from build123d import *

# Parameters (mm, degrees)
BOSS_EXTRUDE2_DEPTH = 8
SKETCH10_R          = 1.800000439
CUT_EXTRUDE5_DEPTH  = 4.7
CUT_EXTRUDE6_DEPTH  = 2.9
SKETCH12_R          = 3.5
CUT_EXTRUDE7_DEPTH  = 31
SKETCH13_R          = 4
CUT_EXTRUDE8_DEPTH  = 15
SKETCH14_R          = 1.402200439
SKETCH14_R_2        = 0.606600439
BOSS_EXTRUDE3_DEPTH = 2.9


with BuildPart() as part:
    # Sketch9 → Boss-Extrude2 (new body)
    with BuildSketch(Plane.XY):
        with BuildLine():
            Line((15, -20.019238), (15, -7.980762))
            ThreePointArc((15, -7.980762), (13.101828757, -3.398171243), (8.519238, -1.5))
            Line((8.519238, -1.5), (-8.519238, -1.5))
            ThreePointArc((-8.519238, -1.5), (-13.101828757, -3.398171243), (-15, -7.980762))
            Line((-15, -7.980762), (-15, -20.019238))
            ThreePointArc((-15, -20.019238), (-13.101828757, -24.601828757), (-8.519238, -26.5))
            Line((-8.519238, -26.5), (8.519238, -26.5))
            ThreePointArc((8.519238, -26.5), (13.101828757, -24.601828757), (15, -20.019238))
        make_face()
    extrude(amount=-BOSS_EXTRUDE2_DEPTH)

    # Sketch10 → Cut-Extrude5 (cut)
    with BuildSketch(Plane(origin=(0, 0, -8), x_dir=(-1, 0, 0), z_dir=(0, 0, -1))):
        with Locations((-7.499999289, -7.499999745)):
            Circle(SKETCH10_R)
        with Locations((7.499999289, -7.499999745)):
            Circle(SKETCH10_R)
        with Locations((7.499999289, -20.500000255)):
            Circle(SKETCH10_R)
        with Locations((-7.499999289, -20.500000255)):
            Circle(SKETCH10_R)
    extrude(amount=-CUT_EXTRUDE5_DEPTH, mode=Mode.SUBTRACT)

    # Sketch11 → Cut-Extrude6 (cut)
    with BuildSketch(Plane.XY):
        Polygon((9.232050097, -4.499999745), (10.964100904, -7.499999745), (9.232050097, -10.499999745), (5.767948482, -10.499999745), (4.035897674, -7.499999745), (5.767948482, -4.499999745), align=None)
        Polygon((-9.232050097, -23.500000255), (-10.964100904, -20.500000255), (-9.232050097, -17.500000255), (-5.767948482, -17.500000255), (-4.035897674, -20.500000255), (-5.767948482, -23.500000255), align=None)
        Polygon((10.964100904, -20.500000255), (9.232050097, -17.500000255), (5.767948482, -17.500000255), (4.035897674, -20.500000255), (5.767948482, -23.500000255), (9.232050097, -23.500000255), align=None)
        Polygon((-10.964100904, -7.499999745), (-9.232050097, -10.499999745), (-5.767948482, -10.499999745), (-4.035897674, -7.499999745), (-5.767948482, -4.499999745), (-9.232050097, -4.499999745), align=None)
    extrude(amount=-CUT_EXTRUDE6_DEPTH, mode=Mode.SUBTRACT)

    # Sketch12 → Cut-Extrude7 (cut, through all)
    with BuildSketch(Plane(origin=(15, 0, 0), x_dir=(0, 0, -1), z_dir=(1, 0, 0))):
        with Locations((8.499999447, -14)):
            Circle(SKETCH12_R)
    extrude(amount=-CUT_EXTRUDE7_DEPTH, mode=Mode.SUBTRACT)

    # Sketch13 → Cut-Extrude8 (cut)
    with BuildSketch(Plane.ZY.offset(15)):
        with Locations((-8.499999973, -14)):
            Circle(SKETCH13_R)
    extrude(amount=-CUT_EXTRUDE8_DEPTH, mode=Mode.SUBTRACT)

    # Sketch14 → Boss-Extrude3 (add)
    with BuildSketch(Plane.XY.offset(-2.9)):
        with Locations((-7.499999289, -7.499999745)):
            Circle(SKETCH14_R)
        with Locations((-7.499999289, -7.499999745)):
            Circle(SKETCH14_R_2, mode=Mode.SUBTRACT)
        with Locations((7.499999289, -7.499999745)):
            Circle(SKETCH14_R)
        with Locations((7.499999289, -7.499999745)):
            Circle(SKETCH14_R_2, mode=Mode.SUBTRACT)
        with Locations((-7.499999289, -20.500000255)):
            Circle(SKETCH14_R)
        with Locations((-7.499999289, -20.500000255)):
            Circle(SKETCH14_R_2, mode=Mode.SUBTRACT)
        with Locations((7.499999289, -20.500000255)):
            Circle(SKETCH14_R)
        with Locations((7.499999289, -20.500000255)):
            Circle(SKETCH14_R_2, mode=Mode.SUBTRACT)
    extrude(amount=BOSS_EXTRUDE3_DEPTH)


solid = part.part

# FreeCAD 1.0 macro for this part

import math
import FreeCAD as App
import Part
import Sketcher
from FreeCAD import Vector
Q = App.Units.Quantity


def add_polygon(sketch, points):
    """Adds a closed chain of lines whose ends are joined by coincident constraints."""
    first, n = sketch.GeometryCount, len(points)
    for a, b in zip(points, points[1:] + points[:1]):
        sketch.addGeometry(Part.LineSegment(App.Vector(*a, 0), App.Vector(*b, 0)), False)
    for i in range(n):
        sketch.addConstraint(Sketcher.Constraint("Coincident", first + i, 2, first + (i + 1) % n, 1))

doc = App.newDocument("Part")
body = doc.addObject("PartDesign::Body", "Body")

# Sketch on XY plane
sketch1 = body.newObject("Sketcher::SketchObject", "Sketch")
sketch1.AttachmentSupport = (doc.getObject("XY_Plane"), [""])
sketch1.MapMode = "FlatFace"
sketch1.addGeometry(Part.LineSegment(Vector(15, -20.019238, 0), Vector(15, -7.980762, 0)), False)
sketch1.addGeometry(Part.ArcOfCircle(Part.Circle(Vector(8.519238, -7.980762, 0), Vector(0, 0, 1), 6.480762), math.radians(0), math.radians(90)), False)
sketch1.addGeometry(Part.LineSegment(Vector(8.519238, -1.5, 0), Vector(-8.519238, -1.5, 0)), False)
sketch1.addGeometry(Part.ArcOfCircle(Part.Circle(Vector(-8.519238, -7.980762, 0), Vector(0, 0, 1), 6.480762), math.radians(90), math.radians(180)), False)
sketch1.addGeometry(Part.LineSegment(Vector(-15, -7.980762, 0), Vector(-15, -20.019238, 0)), False)
sketch1.addGeometry(Part.ArcOfCircle(Part.Circle(Vector(-8.519238, -20.019238, 0), Vector(0, 0, 1), 6.480762), math.radians(-180), math.radians(-90)), False)
sketch1.addGeometry(Part.LineSegment(Vector(-8.519238, -26.5, 0), Vector(8.519238, -26.5, 0)), False)
sketch1.addGeometry(Part.ArcOfCircle(Part.Circle(Vector(8.519238, -20.019238, 0), Vector(0, 0, 1), 6.480762), math.radians(-90), math.radians(0)), False)
sketch1.addConstraint(Sketcher.Constraint("Tangent", 0, 2, 1, 1))
sketch1.addConstraint(Sketcher.Constraint("Tangent", 1, 2, 2, 1))
sketch1.addConstraint(Sketcher.Constraint("Tangent", 2, 2, 3, 1))
sketch1.addConstraint(Sketcher.Constraint("Tangent", 3, 2, 4, 1))
sketch1.addConstraint(Sketcher.Constraint("Tangent", 4, 2, 5, 1))
sketch1.addConstraint(Sketcher.Constraint("Tangent", 5, 2, 6, 1))
sketch1.addConstraint(Sketcher.Constraint("Tangent", 6, 2, 7, 1))
sketch1.addConstraint(Sketcher.Constraint("Tangent", 7, 2, 0, 1))
sketch1.addConstraint(Sketcher.Constraint("Vertical", 0))
sketch1.addConstraint(Sketcher.Constraint("Horizontal", 2))
sketch1.addConstraint(Sketcher.Constraint("Vertical", 4))
sketch1.addConstraint(Sketcher.Constraint("Horizontal", 6))
sketch1.addConstraint(Sketcher.Constraint("Equal", 1, 3))
sketch1.addConstraint(Sketcher.Constraint("Equal", 3, 5))
sketch1.addConstraint(Sketcher.Constraint("Equal", 5, 7))
sketch1.addConstraint(Sketcher.Constraint("DistanceX", -1, 1, 0, 2, 15.0))
sketch1.addConstraint(Sketcher.Constraint("DistanceX", 3, 2, -1, 1, 15.0))
sketch1.addConstraint(Sketcher.Constraint("DistanceY", 1, 2, -1, 1, 1.5))
sketch1.addConstraint(Sketcher.Constraint("DistanceY", 5, 2, -1, 1, 26.5))
sketch1.addConstraint(Sketcher.Constraint("Radius", 1, 6.480762))
pad1 = body.newObject("PartDesign::Pad", "Pad")
pad1.Profile = sketch1
pad1.Length = 8
pad1.Reversed = True

# Sketch on XY plane
sketch2 = body.newObject("Sketcher::SketchObject", "Sketch001")
sketch2.AttachmentSupport = (doc.getObject("XY_Plane"), [""])
sketch2.MapMode = "FlatFace"
sketch2.AttachmentOffset = App.Placement(Vector(0, 0, -8), App.Rotation())
sketch2.addGeometry(Part.Circle(Vector(7.499999, -7.5, 0), Vector(0, 0, 1), 1.8), False)
sketch2.addGeometry(Part.Circle(Vector(-7.499999, -7.5, 0), Vector(0, 0, 1), 1.8), False)
sketch2.addGeometry(Part.Circle(Vector(-7.499999, -20.5, 0), Vector(0, 0, 1), 1.8), False)
sketch2.addGeometry(Part.Circle(Vector(7.499999, -20.5, 0), Vector(0, 0, 1), 1.8), False)
sketch2.addConstraint(Sketcher.Constraint("Equal", 0, 1))
sketch2.addConstraint(Sketcher.Constraint("Equal", 1, 2))
sketch2.addConstraint(Sketcher.Constraint("Equal", 2, 3))
sketch2.addConstraint(Sketcher.Constraint("Symmetric", 0, 3, 1, 3, -2))
sketch2.addConstraint(Sketcher.Constraint("Symmetric", 2, 3, 3, 3, -2))
sketch2.addConstraint(Sketcher.Constraint("Vertical", 1, 3, 2, 3))
sketch2.addConstraint(Sketcher.Constraint("Diameter", 0, 3.600001))
sketch2.addConstraint(Sketcher.Constraint("DistanceX", 1, 3, 0, 3, 14.999999))
sketch2.addConstraint(Sketcher.Constraint("DistanceY", 2, 3, 1, 3, 13.000001))
sketch2.addConstraint(Sketcher.Constraint("DistanceY", 0, 3, -1, 1, 7.5))
pocket1 = body.newObject("PartDesign::Pocket", "Pocket")
pocket1.Profile = sketch2
pocket1.Length = 4.7
pocket1.Reversed = True

# Sketch on XY plane
sketch3 = body.newObject("Sketcher::SketchObject", "Sketch002")
sketch3.AttachmentSupport = (doc.getObject("XY_Plane"), [""])
sketch3.MapMode = "FlatFace"
add_polygon(sketch3, [(10.964101, -7.5), (9.23205, -4.5), (5.767948, -4.5), (4.035898, -7.5), (5.767948, -10.5), (9.23205, -10.5)])  # lines 0-5
add_polygon(sketch3, [(-10.964101, -20.5), (-9.23205, -23.5), (-5.767948, -23.5), (-4.035898, -20.5), (-5.767948, -17.5), (-9.23205, -17.5)])  # lines 6-11
add_polygon(sketch3, [(10.964101, -20.5), (9.23205, -17.5), (5.767948, -17.5), (4.035898, -20.5), (5.767948, -23.5), (9.23205, -23.5)])  # lines 12-17
add_polygon(sketch3, [(-10.964101, -7.5), (-9.23205, -10.5), (-5.767948, -10.5), (-4.035898, -7.5), (-5.767948, -4.5), (-9.23205, -4.5)])  # lines 18-23
sketch3.addConstraint(Sketcher.Constraint("Horizontal", 1))
sketch3.addConstraint(Sketcher.Constraint("Horizontal", 4))
sketch3.addConstraint(Sketcher.Constraint("Horizontal", 7))
sketch3.addConstraint(Sketcher.Constraint("Horizontal", 10))
sketch3.addConstraint(Sketcher.Constraint("Horizontal", 13))
sketch3.addConstraint(Sketcher.Constraint("Horizontal", 16))
sketch3.addConstraint(Sketcher.Constraint("Horizontal", 19))
sketch3.addConstraint(Sketcher.Constraint("Horizontal", 22))
sketch3.addConstraint(Sketcher.Constraint("Symmetric", 10, 2, 12, 2, -2))
sketch3.addConstraint(Sketcher.Constraint("Symmetric", 8, 2, 14, 2, -2))
sketch3.addConstraint(Sketcher.Constraint("Symmetric", 7, 2, 15, 2, -2))
sketch3.addConstraint(Sketcher.Constraint("Symmetric", 11, 2, 17, 2, -2))
sketch3.addConstraint(Sketcher.Constraint("Symmetric", 4, 2, 18, 2, -2))
sketch3.addConstraint(Sketcher.Constraint("Symmetric", 2, 2, 20, 2, -2))
sketch3.addConstraint(Sketcher.Constraint("Symmetric", 1, 2, 21, 2, -2))
sketch3.addConstraint(Sketcher.Constraint("Symmetric", 5, 2, 23, 2, -2))
sketch3.addConstraint(Sketcher.Constraint("Parallel", 0, 3))
sketch3.addConstraint(Sketcher.Constraint("Parallel", 2, 5))
sketch3.addConstraint(Sketcher.Constraint("Parallel", 3, 6))
sketch3.addConstraint(Sketcher.Constraint("Parallel", 5, 8))
sketch3.addConstraint(Sketcher.Constraint("Parallel", 6, 9))
sketch3.addConstraint(Sketcher.Constraint("Parallel", 8, 11))
sketch3.addConstraint(Sketcher.Constraint("Parallel", 9, 12))
sketch3.addConstraint(Sketcher.Constraint("Parallel", 11, 14))
sketch3.addConstraint(Sketcher.Constraint("Parallel", 14, 17))
sketch3.addConstraint(Sketcher.Constraint("Parallel", 17, 20))
sketch3.addConstraint(Sketcher.Constraint("Parallel", 20, 23))
sketch3.addConstraint(Sketcher.Constraint("Horizontal", 2, 2, 5, 2))
sketch3.addConstraint(Sketcher.Constraint("Horizontal", 8, 2, 11, 2))
sketch3.addConstraint(Sketcher.Constraint("Vertical", 1, 2, 3, 2))
sketch3.addConstraint(Sketcher.Constraint("Vertical", 7, 2, 9, 2))
sketch3.addConstraint(Sketcher.Constraint("Vertical", 4, 2, 12, 2))
sketch3.addConstraint(Sketcher.Constraint("Vertical", 3, 2, 13, 2))
sketch3.addConstraint(Sketcher.Constraint("Vertical", 2, 2, 14, 2))
sketch3.addConstraint(Sketcher.Constraint("Angle", 0, Q("120 deg")))
sketch3.addConstraint(Sketcher.Constraint("DistanceY", 2, 2, 1, 2, 3.0))
sketch3.addConstraint(Sketcher.Constraint("DistanceX", 6, 2, 3, 2, 14.999999))
sketch3.addConstraint(Sketcher.Constraint("DistanceY", 6, 2, 3, 2, 13.000001))
sketch3.addConstraint(Sketcher.Constraint("DistanceY", 0, 2, -1, 1, 4.5))
sketch3.addConstraint(Sketcher.Constraint("DistanceX", 1, 2, 1, 1, 3.464102))
pocket2 = body.newObject("PartDesign::Pocket", "Pocket001")
pocket2.Profile = sketch3
pocket2.Length = 2.9

# Sketch on YZ plane
sketch4 = body.newObject("Sketcher::SketchObject", "Sketch003")
sketch4.AttachmentSupport = (doc.getObject("YZ_Plane"), [""])
sketch4.MapMode = "FlatFace"
sketch4.AttachmentOffset = App.Placement(Vector(0, 0, 15), App.Rotation())
sketch4.addGeometry(Part.Circle(Vector(-14, -8.499999, 0), Vector(0, 0, 1), 3.5), False)
sketch4.addConstraint(Sketcher.Constraint("Diameter", 0, 7.0))
sketch4.addConstraint(Sketcher.Constraint("DistanceX", 0, 3, -1, 1, 14.0))
sketch4.addConstraint(Sketcher.Constraint("DistanceY", 0, 3, -1, 1, 8.499999))
pocket3 = body.newObject("PartDesign::Pocket", "Pocket002")
pocket3.Profile = sketch4
pocket3.Type = "ThroughAll"

# Sketch on YZ plane
sketch5 = body.newObject("Sketcher::SketchObject", "Sketch004")
sketch5.AttachmentSupport = (doc.getObject("YZ_Plane"), [""])
sketch5.MapMode = "FlatFace"
sketch5.AttachmentOffset = App.Placement(Vector(0, 0, -15), App.Rotation())
sketch5.addGeometry(Part.Circle(Vector(-14, -8.5, 0), Vector(0, 0, 1), 4), False)
sketch5.addConstraint(Sketcher.Constraint("Diameter", 0, 8.0))
sketch5.addConstraint(Sketcher.Constraint("DistanceX", 0, 3, -1, 1, 14.0))
sketch5.addConstraint(Sketcher.Constraint("DistanceY", 0, 3, -1, 1, 8.5))
pocket4 = body.newObject("PartDesign::Pocket", "Pocket003")
pocket4.Profile = sketch5
pocket4.Length = 15
pocket4.Reversed = True

# Sketch on XY plane
sketch6 = body.newObject("Sketcher::SketchObject", "Sketch005")
sketch6.AttachmentSupport = (doc.getObject("XY_Plane"), [""])
sketch6.MapMode = "FlatFace"
sketch6.AttachmentOffset = App.Placement(Vector(0, 0, -2.9), App.Rotation())
sketch6.addGeometry(Part.Circle(Vector(-7.499999, -7.5, 0), Vector(0, 0, 1), 1.4022), False)
sketch6.addGeometry(Part.Circle(Vector(-7.499999, -7.5, 0), Vector(0, 0, 1), 0.6066), False)
sketch6.addGeometry(Part.Circle(Vector(7.499999, -7.5, 0), Vector(0, 0, 1), 1.4022), False)
sketch6.addGeometry(Part.Circle(Vector(7.499999, -7.5, 0), Vector(0, 0, 1), 0.6066), False)
sketch6.addGeometry(Part.Circle(Vector(-7.499999, -20.5, 0), Vector(0, 0, 1), 1.4022), False)
sketch6.addGeometry(Part.Circle(Vector(-7.499999, -20.5, 0), Vector(0, 0, 1), 0.6066), False)
sketch6.addGeometry(Part.Circle(Vector(7.499999, -20.5, 0), Vector(0, 0, 1), 1.4022), False)
sketch6.addGeometry(Part.Circle(Vector(7.499999, -20.5, 0), Vector(0, 0, 1), 0.6066), False)
sketch6.addConstraint(Sketcher.Constraint("Coincident", 1, 3, 0, 3))
sketch6.addConstraint(Sketcher.Constraint("Coincident", 3, 3, 2, 3))
sketch6.addConstraint(Sketcher.Constraint("Coincident", 5, 3, 4, 3))
sketch6.addConstraint(Sketcher.Constraint("Coincident", 7, 3, 6, 3))
sketch6.addConstraint(Sketcher.Constraint("Equal", 0, 2))
sketch6.addConstraint(Sketcher.Constraint("Equal", 1, 3))
sketch6.addConstraint(Sketcher.Constraint("Equal", 2, 4))
sketch6.addConstraint(Sketcher.Constraint("Equal", 3, 5))
sketch6.addConstraint(Sketcher.Constraint("Equal", 4, 6))
sketch6.addConstraint(Sketcher.Constraint("Equal", 5, 7))
sketch6.addConstraint(Sketcher.Constraint("Symmetric", 0, 3, 2, 3, -2))
sketch6.addConstraint(Sketcher.Constraint("Symmetric", 4, 3, 6, 3, -2))
sketch6.addConstraint(Sketcher.Constraint("Vertical", 1, 3, 4, 3))
sketch6.addConstraint(Sketcher.Constraint("DistanceX", 0, 3, 2, 3, 14.999999))
sketch6.addConstraint(Sketcher.Constraint("DistanceY", 4, 3, 0, 3, 13.000001))
sketch6.addConstraint(Sketcher.Constraint("Diameter", 0, 2.804401))
sketch6.addConstraint(Sketcher.Constraint("Diameter", 1, 1.213201))
sketch6.addConstraint(Sketcher.Constraint("DistanceY", 0, 3, -1, 1, 7.5))
pad2 = body.newObject("PartDesign::Pad", "Pad001")
pad2.Profile = sketch6
pad2.Length = 2.9

doc.recompute()
